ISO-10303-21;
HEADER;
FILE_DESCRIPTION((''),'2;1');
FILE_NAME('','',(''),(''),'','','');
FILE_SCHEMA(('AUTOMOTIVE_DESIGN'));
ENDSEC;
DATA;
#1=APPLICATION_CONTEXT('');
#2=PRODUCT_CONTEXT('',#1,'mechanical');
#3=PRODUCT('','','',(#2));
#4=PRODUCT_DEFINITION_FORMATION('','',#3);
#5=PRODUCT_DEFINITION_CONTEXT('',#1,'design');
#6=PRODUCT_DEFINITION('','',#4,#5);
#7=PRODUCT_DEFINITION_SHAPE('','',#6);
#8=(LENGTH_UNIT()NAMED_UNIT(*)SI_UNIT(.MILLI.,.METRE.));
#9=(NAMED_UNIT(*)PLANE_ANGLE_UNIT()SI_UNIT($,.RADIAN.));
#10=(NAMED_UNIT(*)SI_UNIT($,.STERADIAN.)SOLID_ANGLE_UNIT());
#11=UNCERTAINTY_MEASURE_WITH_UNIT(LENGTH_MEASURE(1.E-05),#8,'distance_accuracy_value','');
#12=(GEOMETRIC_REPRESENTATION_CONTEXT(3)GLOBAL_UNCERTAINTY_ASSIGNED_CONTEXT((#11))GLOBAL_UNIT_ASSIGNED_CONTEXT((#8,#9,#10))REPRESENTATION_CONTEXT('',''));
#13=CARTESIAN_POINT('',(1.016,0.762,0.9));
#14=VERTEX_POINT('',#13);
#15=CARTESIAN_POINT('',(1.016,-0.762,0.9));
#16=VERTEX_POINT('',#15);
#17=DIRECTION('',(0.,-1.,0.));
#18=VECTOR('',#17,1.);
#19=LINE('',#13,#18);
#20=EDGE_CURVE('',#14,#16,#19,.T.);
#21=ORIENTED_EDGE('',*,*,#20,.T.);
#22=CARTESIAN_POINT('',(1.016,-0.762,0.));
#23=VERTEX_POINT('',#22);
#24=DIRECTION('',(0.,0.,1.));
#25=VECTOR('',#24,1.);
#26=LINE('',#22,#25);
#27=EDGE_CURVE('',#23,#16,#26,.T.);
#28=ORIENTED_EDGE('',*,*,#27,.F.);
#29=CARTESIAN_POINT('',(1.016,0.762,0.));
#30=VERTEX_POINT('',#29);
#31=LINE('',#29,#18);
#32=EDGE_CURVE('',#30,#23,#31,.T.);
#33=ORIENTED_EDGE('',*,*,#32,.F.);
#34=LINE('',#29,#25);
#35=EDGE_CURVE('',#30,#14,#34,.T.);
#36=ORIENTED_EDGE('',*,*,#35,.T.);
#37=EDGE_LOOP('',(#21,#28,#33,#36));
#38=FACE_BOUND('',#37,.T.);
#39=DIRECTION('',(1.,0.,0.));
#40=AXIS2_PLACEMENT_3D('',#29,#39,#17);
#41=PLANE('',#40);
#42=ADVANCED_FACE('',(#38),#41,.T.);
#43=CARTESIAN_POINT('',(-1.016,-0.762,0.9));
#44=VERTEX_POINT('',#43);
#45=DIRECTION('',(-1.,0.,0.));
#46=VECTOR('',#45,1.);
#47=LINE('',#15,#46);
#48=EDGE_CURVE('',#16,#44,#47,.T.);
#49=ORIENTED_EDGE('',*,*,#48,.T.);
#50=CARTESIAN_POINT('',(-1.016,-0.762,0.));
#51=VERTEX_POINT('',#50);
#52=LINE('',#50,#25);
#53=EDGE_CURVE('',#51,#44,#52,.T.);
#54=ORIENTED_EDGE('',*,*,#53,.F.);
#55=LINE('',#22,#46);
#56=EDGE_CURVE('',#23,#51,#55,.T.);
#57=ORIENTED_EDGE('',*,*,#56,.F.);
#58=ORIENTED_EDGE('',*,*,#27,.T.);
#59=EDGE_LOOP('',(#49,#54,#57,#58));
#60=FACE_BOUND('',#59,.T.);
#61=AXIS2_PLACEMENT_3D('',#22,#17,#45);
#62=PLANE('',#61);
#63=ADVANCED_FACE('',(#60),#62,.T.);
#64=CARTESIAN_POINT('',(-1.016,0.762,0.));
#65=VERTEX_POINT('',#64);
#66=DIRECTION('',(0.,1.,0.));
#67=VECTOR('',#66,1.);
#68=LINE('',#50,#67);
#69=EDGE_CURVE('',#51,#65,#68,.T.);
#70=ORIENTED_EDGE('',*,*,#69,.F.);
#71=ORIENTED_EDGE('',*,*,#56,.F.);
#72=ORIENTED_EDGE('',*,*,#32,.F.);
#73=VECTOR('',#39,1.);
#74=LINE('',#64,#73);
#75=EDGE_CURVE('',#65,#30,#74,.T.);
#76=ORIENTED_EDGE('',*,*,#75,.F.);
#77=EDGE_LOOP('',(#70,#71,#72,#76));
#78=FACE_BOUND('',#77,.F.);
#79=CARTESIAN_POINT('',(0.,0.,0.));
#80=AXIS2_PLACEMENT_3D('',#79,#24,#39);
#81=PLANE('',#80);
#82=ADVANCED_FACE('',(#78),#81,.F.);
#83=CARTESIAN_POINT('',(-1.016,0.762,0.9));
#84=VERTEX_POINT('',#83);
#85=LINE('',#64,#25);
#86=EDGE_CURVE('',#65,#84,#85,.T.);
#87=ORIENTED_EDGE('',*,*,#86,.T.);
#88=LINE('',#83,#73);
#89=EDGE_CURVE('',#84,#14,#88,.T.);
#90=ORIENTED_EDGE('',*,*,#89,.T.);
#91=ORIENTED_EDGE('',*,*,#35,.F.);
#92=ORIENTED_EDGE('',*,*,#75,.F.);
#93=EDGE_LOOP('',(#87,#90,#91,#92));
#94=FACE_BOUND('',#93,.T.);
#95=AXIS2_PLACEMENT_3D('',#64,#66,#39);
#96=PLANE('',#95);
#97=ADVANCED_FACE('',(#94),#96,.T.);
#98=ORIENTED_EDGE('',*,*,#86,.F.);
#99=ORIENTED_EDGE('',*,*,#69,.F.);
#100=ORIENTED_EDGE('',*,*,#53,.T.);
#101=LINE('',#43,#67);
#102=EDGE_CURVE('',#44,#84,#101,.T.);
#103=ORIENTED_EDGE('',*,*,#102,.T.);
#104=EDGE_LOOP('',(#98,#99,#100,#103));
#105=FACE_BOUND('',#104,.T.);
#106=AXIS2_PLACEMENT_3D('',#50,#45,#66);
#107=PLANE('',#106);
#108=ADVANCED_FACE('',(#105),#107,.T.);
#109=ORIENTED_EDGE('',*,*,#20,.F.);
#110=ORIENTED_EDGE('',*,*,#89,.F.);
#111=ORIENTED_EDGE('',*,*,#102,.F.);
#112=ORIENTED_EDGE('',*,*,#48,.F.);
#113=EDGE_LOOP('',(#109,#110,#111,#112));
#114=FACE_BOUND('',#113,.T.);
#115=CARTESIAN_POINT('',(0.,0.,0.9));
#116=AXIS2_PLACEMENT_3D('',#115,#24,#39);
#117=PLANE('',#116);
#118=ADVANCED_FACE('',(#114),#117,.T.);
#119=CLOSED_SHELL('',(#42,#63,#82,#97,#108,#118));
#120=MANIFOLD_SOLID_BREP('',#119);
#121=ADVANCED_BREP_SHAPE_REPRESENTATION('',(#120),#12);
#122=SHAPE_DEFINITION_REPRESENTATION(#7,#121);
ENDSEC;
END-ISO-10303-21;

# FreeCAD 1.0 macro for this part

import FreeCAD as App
import Part
import Sketcher
from FreeCAD import Vector
Q = App.Units.Quantity


def add_polygon(sketch, points):
    """Adds a closed chain of lines whose ends are joined by coincident constraints."""
    first, n = sketch.GeometryCount, len(points)
    for a, b in zip(points, points[1:] + points[:1]):
        sketch.addGeometry(Part.LineSegment(App.Vector(*a, 0), App.Vector(*b, 0)), False)
    for i in range(n):
        sketch.addConstraint(Sketcher.Constraint("Coincident", first + i, 2, first + (i + 1) % n, 1))

doc = App.newDocument("Part")
params = doc.addObject("Spreadsheet::Sheet", "Params")
for row, (alias, value) in enumerate([
    ("sketch1_width", "0.08 in"),
    ("sketch1_height", "0.06 in"),
    ("pad1_length", "0.9 mm"),
], start=1):
    params.set(f"A{row}", alias)
    params.set(f"B{row}", "=" + value)
    params.setAlias(f"B{row}", alias)

body = doc.addObject("PartDesign::Body", "Body")

sketch1 = body.newObject("Sketcher::SketchObject", "Sketch")
sketch1.AttachmentSupport = (doc.getObject("XY_Plane"), [""])
sketch1.MapMode = "FlatFace"
add_polygon(sketch1, [(-1, -0.8), (1, -0.8), (1, 0.8), (-1, 0.8)])
sketch1.addConstraint([
    Sketcher.Constraint("Horizontal", 0),
    Sketcher.Constraint("Vertical", 1),
    Sketcher.Constraint("Horizontal", 2),
    Sketcher.Constraint("Vertical", 3),
    Sketcher.Constraint("Symmetric", 0, 2, 2, 2, -1, 1),
    Sketcher.Constraint("DistanceX", 0, 1, 0, 2, Q("0.08 in")),
    Sketcher.Constraint("DistanceY", 1, 1, 1, 2, Q("0.06 in")),
])
sketch1.setExpression("Constraints[9]", "Params.sketch1_width")
sketch1.setExpression("Constraints[10]", "Params.sketch1_height")
pad1 = body.newObject("PartDesign::Pad", "Pad")
pad1.Profile = sketch1
pad1.setExpression("Length", "Params.pad1_length")

doc.recompute()
